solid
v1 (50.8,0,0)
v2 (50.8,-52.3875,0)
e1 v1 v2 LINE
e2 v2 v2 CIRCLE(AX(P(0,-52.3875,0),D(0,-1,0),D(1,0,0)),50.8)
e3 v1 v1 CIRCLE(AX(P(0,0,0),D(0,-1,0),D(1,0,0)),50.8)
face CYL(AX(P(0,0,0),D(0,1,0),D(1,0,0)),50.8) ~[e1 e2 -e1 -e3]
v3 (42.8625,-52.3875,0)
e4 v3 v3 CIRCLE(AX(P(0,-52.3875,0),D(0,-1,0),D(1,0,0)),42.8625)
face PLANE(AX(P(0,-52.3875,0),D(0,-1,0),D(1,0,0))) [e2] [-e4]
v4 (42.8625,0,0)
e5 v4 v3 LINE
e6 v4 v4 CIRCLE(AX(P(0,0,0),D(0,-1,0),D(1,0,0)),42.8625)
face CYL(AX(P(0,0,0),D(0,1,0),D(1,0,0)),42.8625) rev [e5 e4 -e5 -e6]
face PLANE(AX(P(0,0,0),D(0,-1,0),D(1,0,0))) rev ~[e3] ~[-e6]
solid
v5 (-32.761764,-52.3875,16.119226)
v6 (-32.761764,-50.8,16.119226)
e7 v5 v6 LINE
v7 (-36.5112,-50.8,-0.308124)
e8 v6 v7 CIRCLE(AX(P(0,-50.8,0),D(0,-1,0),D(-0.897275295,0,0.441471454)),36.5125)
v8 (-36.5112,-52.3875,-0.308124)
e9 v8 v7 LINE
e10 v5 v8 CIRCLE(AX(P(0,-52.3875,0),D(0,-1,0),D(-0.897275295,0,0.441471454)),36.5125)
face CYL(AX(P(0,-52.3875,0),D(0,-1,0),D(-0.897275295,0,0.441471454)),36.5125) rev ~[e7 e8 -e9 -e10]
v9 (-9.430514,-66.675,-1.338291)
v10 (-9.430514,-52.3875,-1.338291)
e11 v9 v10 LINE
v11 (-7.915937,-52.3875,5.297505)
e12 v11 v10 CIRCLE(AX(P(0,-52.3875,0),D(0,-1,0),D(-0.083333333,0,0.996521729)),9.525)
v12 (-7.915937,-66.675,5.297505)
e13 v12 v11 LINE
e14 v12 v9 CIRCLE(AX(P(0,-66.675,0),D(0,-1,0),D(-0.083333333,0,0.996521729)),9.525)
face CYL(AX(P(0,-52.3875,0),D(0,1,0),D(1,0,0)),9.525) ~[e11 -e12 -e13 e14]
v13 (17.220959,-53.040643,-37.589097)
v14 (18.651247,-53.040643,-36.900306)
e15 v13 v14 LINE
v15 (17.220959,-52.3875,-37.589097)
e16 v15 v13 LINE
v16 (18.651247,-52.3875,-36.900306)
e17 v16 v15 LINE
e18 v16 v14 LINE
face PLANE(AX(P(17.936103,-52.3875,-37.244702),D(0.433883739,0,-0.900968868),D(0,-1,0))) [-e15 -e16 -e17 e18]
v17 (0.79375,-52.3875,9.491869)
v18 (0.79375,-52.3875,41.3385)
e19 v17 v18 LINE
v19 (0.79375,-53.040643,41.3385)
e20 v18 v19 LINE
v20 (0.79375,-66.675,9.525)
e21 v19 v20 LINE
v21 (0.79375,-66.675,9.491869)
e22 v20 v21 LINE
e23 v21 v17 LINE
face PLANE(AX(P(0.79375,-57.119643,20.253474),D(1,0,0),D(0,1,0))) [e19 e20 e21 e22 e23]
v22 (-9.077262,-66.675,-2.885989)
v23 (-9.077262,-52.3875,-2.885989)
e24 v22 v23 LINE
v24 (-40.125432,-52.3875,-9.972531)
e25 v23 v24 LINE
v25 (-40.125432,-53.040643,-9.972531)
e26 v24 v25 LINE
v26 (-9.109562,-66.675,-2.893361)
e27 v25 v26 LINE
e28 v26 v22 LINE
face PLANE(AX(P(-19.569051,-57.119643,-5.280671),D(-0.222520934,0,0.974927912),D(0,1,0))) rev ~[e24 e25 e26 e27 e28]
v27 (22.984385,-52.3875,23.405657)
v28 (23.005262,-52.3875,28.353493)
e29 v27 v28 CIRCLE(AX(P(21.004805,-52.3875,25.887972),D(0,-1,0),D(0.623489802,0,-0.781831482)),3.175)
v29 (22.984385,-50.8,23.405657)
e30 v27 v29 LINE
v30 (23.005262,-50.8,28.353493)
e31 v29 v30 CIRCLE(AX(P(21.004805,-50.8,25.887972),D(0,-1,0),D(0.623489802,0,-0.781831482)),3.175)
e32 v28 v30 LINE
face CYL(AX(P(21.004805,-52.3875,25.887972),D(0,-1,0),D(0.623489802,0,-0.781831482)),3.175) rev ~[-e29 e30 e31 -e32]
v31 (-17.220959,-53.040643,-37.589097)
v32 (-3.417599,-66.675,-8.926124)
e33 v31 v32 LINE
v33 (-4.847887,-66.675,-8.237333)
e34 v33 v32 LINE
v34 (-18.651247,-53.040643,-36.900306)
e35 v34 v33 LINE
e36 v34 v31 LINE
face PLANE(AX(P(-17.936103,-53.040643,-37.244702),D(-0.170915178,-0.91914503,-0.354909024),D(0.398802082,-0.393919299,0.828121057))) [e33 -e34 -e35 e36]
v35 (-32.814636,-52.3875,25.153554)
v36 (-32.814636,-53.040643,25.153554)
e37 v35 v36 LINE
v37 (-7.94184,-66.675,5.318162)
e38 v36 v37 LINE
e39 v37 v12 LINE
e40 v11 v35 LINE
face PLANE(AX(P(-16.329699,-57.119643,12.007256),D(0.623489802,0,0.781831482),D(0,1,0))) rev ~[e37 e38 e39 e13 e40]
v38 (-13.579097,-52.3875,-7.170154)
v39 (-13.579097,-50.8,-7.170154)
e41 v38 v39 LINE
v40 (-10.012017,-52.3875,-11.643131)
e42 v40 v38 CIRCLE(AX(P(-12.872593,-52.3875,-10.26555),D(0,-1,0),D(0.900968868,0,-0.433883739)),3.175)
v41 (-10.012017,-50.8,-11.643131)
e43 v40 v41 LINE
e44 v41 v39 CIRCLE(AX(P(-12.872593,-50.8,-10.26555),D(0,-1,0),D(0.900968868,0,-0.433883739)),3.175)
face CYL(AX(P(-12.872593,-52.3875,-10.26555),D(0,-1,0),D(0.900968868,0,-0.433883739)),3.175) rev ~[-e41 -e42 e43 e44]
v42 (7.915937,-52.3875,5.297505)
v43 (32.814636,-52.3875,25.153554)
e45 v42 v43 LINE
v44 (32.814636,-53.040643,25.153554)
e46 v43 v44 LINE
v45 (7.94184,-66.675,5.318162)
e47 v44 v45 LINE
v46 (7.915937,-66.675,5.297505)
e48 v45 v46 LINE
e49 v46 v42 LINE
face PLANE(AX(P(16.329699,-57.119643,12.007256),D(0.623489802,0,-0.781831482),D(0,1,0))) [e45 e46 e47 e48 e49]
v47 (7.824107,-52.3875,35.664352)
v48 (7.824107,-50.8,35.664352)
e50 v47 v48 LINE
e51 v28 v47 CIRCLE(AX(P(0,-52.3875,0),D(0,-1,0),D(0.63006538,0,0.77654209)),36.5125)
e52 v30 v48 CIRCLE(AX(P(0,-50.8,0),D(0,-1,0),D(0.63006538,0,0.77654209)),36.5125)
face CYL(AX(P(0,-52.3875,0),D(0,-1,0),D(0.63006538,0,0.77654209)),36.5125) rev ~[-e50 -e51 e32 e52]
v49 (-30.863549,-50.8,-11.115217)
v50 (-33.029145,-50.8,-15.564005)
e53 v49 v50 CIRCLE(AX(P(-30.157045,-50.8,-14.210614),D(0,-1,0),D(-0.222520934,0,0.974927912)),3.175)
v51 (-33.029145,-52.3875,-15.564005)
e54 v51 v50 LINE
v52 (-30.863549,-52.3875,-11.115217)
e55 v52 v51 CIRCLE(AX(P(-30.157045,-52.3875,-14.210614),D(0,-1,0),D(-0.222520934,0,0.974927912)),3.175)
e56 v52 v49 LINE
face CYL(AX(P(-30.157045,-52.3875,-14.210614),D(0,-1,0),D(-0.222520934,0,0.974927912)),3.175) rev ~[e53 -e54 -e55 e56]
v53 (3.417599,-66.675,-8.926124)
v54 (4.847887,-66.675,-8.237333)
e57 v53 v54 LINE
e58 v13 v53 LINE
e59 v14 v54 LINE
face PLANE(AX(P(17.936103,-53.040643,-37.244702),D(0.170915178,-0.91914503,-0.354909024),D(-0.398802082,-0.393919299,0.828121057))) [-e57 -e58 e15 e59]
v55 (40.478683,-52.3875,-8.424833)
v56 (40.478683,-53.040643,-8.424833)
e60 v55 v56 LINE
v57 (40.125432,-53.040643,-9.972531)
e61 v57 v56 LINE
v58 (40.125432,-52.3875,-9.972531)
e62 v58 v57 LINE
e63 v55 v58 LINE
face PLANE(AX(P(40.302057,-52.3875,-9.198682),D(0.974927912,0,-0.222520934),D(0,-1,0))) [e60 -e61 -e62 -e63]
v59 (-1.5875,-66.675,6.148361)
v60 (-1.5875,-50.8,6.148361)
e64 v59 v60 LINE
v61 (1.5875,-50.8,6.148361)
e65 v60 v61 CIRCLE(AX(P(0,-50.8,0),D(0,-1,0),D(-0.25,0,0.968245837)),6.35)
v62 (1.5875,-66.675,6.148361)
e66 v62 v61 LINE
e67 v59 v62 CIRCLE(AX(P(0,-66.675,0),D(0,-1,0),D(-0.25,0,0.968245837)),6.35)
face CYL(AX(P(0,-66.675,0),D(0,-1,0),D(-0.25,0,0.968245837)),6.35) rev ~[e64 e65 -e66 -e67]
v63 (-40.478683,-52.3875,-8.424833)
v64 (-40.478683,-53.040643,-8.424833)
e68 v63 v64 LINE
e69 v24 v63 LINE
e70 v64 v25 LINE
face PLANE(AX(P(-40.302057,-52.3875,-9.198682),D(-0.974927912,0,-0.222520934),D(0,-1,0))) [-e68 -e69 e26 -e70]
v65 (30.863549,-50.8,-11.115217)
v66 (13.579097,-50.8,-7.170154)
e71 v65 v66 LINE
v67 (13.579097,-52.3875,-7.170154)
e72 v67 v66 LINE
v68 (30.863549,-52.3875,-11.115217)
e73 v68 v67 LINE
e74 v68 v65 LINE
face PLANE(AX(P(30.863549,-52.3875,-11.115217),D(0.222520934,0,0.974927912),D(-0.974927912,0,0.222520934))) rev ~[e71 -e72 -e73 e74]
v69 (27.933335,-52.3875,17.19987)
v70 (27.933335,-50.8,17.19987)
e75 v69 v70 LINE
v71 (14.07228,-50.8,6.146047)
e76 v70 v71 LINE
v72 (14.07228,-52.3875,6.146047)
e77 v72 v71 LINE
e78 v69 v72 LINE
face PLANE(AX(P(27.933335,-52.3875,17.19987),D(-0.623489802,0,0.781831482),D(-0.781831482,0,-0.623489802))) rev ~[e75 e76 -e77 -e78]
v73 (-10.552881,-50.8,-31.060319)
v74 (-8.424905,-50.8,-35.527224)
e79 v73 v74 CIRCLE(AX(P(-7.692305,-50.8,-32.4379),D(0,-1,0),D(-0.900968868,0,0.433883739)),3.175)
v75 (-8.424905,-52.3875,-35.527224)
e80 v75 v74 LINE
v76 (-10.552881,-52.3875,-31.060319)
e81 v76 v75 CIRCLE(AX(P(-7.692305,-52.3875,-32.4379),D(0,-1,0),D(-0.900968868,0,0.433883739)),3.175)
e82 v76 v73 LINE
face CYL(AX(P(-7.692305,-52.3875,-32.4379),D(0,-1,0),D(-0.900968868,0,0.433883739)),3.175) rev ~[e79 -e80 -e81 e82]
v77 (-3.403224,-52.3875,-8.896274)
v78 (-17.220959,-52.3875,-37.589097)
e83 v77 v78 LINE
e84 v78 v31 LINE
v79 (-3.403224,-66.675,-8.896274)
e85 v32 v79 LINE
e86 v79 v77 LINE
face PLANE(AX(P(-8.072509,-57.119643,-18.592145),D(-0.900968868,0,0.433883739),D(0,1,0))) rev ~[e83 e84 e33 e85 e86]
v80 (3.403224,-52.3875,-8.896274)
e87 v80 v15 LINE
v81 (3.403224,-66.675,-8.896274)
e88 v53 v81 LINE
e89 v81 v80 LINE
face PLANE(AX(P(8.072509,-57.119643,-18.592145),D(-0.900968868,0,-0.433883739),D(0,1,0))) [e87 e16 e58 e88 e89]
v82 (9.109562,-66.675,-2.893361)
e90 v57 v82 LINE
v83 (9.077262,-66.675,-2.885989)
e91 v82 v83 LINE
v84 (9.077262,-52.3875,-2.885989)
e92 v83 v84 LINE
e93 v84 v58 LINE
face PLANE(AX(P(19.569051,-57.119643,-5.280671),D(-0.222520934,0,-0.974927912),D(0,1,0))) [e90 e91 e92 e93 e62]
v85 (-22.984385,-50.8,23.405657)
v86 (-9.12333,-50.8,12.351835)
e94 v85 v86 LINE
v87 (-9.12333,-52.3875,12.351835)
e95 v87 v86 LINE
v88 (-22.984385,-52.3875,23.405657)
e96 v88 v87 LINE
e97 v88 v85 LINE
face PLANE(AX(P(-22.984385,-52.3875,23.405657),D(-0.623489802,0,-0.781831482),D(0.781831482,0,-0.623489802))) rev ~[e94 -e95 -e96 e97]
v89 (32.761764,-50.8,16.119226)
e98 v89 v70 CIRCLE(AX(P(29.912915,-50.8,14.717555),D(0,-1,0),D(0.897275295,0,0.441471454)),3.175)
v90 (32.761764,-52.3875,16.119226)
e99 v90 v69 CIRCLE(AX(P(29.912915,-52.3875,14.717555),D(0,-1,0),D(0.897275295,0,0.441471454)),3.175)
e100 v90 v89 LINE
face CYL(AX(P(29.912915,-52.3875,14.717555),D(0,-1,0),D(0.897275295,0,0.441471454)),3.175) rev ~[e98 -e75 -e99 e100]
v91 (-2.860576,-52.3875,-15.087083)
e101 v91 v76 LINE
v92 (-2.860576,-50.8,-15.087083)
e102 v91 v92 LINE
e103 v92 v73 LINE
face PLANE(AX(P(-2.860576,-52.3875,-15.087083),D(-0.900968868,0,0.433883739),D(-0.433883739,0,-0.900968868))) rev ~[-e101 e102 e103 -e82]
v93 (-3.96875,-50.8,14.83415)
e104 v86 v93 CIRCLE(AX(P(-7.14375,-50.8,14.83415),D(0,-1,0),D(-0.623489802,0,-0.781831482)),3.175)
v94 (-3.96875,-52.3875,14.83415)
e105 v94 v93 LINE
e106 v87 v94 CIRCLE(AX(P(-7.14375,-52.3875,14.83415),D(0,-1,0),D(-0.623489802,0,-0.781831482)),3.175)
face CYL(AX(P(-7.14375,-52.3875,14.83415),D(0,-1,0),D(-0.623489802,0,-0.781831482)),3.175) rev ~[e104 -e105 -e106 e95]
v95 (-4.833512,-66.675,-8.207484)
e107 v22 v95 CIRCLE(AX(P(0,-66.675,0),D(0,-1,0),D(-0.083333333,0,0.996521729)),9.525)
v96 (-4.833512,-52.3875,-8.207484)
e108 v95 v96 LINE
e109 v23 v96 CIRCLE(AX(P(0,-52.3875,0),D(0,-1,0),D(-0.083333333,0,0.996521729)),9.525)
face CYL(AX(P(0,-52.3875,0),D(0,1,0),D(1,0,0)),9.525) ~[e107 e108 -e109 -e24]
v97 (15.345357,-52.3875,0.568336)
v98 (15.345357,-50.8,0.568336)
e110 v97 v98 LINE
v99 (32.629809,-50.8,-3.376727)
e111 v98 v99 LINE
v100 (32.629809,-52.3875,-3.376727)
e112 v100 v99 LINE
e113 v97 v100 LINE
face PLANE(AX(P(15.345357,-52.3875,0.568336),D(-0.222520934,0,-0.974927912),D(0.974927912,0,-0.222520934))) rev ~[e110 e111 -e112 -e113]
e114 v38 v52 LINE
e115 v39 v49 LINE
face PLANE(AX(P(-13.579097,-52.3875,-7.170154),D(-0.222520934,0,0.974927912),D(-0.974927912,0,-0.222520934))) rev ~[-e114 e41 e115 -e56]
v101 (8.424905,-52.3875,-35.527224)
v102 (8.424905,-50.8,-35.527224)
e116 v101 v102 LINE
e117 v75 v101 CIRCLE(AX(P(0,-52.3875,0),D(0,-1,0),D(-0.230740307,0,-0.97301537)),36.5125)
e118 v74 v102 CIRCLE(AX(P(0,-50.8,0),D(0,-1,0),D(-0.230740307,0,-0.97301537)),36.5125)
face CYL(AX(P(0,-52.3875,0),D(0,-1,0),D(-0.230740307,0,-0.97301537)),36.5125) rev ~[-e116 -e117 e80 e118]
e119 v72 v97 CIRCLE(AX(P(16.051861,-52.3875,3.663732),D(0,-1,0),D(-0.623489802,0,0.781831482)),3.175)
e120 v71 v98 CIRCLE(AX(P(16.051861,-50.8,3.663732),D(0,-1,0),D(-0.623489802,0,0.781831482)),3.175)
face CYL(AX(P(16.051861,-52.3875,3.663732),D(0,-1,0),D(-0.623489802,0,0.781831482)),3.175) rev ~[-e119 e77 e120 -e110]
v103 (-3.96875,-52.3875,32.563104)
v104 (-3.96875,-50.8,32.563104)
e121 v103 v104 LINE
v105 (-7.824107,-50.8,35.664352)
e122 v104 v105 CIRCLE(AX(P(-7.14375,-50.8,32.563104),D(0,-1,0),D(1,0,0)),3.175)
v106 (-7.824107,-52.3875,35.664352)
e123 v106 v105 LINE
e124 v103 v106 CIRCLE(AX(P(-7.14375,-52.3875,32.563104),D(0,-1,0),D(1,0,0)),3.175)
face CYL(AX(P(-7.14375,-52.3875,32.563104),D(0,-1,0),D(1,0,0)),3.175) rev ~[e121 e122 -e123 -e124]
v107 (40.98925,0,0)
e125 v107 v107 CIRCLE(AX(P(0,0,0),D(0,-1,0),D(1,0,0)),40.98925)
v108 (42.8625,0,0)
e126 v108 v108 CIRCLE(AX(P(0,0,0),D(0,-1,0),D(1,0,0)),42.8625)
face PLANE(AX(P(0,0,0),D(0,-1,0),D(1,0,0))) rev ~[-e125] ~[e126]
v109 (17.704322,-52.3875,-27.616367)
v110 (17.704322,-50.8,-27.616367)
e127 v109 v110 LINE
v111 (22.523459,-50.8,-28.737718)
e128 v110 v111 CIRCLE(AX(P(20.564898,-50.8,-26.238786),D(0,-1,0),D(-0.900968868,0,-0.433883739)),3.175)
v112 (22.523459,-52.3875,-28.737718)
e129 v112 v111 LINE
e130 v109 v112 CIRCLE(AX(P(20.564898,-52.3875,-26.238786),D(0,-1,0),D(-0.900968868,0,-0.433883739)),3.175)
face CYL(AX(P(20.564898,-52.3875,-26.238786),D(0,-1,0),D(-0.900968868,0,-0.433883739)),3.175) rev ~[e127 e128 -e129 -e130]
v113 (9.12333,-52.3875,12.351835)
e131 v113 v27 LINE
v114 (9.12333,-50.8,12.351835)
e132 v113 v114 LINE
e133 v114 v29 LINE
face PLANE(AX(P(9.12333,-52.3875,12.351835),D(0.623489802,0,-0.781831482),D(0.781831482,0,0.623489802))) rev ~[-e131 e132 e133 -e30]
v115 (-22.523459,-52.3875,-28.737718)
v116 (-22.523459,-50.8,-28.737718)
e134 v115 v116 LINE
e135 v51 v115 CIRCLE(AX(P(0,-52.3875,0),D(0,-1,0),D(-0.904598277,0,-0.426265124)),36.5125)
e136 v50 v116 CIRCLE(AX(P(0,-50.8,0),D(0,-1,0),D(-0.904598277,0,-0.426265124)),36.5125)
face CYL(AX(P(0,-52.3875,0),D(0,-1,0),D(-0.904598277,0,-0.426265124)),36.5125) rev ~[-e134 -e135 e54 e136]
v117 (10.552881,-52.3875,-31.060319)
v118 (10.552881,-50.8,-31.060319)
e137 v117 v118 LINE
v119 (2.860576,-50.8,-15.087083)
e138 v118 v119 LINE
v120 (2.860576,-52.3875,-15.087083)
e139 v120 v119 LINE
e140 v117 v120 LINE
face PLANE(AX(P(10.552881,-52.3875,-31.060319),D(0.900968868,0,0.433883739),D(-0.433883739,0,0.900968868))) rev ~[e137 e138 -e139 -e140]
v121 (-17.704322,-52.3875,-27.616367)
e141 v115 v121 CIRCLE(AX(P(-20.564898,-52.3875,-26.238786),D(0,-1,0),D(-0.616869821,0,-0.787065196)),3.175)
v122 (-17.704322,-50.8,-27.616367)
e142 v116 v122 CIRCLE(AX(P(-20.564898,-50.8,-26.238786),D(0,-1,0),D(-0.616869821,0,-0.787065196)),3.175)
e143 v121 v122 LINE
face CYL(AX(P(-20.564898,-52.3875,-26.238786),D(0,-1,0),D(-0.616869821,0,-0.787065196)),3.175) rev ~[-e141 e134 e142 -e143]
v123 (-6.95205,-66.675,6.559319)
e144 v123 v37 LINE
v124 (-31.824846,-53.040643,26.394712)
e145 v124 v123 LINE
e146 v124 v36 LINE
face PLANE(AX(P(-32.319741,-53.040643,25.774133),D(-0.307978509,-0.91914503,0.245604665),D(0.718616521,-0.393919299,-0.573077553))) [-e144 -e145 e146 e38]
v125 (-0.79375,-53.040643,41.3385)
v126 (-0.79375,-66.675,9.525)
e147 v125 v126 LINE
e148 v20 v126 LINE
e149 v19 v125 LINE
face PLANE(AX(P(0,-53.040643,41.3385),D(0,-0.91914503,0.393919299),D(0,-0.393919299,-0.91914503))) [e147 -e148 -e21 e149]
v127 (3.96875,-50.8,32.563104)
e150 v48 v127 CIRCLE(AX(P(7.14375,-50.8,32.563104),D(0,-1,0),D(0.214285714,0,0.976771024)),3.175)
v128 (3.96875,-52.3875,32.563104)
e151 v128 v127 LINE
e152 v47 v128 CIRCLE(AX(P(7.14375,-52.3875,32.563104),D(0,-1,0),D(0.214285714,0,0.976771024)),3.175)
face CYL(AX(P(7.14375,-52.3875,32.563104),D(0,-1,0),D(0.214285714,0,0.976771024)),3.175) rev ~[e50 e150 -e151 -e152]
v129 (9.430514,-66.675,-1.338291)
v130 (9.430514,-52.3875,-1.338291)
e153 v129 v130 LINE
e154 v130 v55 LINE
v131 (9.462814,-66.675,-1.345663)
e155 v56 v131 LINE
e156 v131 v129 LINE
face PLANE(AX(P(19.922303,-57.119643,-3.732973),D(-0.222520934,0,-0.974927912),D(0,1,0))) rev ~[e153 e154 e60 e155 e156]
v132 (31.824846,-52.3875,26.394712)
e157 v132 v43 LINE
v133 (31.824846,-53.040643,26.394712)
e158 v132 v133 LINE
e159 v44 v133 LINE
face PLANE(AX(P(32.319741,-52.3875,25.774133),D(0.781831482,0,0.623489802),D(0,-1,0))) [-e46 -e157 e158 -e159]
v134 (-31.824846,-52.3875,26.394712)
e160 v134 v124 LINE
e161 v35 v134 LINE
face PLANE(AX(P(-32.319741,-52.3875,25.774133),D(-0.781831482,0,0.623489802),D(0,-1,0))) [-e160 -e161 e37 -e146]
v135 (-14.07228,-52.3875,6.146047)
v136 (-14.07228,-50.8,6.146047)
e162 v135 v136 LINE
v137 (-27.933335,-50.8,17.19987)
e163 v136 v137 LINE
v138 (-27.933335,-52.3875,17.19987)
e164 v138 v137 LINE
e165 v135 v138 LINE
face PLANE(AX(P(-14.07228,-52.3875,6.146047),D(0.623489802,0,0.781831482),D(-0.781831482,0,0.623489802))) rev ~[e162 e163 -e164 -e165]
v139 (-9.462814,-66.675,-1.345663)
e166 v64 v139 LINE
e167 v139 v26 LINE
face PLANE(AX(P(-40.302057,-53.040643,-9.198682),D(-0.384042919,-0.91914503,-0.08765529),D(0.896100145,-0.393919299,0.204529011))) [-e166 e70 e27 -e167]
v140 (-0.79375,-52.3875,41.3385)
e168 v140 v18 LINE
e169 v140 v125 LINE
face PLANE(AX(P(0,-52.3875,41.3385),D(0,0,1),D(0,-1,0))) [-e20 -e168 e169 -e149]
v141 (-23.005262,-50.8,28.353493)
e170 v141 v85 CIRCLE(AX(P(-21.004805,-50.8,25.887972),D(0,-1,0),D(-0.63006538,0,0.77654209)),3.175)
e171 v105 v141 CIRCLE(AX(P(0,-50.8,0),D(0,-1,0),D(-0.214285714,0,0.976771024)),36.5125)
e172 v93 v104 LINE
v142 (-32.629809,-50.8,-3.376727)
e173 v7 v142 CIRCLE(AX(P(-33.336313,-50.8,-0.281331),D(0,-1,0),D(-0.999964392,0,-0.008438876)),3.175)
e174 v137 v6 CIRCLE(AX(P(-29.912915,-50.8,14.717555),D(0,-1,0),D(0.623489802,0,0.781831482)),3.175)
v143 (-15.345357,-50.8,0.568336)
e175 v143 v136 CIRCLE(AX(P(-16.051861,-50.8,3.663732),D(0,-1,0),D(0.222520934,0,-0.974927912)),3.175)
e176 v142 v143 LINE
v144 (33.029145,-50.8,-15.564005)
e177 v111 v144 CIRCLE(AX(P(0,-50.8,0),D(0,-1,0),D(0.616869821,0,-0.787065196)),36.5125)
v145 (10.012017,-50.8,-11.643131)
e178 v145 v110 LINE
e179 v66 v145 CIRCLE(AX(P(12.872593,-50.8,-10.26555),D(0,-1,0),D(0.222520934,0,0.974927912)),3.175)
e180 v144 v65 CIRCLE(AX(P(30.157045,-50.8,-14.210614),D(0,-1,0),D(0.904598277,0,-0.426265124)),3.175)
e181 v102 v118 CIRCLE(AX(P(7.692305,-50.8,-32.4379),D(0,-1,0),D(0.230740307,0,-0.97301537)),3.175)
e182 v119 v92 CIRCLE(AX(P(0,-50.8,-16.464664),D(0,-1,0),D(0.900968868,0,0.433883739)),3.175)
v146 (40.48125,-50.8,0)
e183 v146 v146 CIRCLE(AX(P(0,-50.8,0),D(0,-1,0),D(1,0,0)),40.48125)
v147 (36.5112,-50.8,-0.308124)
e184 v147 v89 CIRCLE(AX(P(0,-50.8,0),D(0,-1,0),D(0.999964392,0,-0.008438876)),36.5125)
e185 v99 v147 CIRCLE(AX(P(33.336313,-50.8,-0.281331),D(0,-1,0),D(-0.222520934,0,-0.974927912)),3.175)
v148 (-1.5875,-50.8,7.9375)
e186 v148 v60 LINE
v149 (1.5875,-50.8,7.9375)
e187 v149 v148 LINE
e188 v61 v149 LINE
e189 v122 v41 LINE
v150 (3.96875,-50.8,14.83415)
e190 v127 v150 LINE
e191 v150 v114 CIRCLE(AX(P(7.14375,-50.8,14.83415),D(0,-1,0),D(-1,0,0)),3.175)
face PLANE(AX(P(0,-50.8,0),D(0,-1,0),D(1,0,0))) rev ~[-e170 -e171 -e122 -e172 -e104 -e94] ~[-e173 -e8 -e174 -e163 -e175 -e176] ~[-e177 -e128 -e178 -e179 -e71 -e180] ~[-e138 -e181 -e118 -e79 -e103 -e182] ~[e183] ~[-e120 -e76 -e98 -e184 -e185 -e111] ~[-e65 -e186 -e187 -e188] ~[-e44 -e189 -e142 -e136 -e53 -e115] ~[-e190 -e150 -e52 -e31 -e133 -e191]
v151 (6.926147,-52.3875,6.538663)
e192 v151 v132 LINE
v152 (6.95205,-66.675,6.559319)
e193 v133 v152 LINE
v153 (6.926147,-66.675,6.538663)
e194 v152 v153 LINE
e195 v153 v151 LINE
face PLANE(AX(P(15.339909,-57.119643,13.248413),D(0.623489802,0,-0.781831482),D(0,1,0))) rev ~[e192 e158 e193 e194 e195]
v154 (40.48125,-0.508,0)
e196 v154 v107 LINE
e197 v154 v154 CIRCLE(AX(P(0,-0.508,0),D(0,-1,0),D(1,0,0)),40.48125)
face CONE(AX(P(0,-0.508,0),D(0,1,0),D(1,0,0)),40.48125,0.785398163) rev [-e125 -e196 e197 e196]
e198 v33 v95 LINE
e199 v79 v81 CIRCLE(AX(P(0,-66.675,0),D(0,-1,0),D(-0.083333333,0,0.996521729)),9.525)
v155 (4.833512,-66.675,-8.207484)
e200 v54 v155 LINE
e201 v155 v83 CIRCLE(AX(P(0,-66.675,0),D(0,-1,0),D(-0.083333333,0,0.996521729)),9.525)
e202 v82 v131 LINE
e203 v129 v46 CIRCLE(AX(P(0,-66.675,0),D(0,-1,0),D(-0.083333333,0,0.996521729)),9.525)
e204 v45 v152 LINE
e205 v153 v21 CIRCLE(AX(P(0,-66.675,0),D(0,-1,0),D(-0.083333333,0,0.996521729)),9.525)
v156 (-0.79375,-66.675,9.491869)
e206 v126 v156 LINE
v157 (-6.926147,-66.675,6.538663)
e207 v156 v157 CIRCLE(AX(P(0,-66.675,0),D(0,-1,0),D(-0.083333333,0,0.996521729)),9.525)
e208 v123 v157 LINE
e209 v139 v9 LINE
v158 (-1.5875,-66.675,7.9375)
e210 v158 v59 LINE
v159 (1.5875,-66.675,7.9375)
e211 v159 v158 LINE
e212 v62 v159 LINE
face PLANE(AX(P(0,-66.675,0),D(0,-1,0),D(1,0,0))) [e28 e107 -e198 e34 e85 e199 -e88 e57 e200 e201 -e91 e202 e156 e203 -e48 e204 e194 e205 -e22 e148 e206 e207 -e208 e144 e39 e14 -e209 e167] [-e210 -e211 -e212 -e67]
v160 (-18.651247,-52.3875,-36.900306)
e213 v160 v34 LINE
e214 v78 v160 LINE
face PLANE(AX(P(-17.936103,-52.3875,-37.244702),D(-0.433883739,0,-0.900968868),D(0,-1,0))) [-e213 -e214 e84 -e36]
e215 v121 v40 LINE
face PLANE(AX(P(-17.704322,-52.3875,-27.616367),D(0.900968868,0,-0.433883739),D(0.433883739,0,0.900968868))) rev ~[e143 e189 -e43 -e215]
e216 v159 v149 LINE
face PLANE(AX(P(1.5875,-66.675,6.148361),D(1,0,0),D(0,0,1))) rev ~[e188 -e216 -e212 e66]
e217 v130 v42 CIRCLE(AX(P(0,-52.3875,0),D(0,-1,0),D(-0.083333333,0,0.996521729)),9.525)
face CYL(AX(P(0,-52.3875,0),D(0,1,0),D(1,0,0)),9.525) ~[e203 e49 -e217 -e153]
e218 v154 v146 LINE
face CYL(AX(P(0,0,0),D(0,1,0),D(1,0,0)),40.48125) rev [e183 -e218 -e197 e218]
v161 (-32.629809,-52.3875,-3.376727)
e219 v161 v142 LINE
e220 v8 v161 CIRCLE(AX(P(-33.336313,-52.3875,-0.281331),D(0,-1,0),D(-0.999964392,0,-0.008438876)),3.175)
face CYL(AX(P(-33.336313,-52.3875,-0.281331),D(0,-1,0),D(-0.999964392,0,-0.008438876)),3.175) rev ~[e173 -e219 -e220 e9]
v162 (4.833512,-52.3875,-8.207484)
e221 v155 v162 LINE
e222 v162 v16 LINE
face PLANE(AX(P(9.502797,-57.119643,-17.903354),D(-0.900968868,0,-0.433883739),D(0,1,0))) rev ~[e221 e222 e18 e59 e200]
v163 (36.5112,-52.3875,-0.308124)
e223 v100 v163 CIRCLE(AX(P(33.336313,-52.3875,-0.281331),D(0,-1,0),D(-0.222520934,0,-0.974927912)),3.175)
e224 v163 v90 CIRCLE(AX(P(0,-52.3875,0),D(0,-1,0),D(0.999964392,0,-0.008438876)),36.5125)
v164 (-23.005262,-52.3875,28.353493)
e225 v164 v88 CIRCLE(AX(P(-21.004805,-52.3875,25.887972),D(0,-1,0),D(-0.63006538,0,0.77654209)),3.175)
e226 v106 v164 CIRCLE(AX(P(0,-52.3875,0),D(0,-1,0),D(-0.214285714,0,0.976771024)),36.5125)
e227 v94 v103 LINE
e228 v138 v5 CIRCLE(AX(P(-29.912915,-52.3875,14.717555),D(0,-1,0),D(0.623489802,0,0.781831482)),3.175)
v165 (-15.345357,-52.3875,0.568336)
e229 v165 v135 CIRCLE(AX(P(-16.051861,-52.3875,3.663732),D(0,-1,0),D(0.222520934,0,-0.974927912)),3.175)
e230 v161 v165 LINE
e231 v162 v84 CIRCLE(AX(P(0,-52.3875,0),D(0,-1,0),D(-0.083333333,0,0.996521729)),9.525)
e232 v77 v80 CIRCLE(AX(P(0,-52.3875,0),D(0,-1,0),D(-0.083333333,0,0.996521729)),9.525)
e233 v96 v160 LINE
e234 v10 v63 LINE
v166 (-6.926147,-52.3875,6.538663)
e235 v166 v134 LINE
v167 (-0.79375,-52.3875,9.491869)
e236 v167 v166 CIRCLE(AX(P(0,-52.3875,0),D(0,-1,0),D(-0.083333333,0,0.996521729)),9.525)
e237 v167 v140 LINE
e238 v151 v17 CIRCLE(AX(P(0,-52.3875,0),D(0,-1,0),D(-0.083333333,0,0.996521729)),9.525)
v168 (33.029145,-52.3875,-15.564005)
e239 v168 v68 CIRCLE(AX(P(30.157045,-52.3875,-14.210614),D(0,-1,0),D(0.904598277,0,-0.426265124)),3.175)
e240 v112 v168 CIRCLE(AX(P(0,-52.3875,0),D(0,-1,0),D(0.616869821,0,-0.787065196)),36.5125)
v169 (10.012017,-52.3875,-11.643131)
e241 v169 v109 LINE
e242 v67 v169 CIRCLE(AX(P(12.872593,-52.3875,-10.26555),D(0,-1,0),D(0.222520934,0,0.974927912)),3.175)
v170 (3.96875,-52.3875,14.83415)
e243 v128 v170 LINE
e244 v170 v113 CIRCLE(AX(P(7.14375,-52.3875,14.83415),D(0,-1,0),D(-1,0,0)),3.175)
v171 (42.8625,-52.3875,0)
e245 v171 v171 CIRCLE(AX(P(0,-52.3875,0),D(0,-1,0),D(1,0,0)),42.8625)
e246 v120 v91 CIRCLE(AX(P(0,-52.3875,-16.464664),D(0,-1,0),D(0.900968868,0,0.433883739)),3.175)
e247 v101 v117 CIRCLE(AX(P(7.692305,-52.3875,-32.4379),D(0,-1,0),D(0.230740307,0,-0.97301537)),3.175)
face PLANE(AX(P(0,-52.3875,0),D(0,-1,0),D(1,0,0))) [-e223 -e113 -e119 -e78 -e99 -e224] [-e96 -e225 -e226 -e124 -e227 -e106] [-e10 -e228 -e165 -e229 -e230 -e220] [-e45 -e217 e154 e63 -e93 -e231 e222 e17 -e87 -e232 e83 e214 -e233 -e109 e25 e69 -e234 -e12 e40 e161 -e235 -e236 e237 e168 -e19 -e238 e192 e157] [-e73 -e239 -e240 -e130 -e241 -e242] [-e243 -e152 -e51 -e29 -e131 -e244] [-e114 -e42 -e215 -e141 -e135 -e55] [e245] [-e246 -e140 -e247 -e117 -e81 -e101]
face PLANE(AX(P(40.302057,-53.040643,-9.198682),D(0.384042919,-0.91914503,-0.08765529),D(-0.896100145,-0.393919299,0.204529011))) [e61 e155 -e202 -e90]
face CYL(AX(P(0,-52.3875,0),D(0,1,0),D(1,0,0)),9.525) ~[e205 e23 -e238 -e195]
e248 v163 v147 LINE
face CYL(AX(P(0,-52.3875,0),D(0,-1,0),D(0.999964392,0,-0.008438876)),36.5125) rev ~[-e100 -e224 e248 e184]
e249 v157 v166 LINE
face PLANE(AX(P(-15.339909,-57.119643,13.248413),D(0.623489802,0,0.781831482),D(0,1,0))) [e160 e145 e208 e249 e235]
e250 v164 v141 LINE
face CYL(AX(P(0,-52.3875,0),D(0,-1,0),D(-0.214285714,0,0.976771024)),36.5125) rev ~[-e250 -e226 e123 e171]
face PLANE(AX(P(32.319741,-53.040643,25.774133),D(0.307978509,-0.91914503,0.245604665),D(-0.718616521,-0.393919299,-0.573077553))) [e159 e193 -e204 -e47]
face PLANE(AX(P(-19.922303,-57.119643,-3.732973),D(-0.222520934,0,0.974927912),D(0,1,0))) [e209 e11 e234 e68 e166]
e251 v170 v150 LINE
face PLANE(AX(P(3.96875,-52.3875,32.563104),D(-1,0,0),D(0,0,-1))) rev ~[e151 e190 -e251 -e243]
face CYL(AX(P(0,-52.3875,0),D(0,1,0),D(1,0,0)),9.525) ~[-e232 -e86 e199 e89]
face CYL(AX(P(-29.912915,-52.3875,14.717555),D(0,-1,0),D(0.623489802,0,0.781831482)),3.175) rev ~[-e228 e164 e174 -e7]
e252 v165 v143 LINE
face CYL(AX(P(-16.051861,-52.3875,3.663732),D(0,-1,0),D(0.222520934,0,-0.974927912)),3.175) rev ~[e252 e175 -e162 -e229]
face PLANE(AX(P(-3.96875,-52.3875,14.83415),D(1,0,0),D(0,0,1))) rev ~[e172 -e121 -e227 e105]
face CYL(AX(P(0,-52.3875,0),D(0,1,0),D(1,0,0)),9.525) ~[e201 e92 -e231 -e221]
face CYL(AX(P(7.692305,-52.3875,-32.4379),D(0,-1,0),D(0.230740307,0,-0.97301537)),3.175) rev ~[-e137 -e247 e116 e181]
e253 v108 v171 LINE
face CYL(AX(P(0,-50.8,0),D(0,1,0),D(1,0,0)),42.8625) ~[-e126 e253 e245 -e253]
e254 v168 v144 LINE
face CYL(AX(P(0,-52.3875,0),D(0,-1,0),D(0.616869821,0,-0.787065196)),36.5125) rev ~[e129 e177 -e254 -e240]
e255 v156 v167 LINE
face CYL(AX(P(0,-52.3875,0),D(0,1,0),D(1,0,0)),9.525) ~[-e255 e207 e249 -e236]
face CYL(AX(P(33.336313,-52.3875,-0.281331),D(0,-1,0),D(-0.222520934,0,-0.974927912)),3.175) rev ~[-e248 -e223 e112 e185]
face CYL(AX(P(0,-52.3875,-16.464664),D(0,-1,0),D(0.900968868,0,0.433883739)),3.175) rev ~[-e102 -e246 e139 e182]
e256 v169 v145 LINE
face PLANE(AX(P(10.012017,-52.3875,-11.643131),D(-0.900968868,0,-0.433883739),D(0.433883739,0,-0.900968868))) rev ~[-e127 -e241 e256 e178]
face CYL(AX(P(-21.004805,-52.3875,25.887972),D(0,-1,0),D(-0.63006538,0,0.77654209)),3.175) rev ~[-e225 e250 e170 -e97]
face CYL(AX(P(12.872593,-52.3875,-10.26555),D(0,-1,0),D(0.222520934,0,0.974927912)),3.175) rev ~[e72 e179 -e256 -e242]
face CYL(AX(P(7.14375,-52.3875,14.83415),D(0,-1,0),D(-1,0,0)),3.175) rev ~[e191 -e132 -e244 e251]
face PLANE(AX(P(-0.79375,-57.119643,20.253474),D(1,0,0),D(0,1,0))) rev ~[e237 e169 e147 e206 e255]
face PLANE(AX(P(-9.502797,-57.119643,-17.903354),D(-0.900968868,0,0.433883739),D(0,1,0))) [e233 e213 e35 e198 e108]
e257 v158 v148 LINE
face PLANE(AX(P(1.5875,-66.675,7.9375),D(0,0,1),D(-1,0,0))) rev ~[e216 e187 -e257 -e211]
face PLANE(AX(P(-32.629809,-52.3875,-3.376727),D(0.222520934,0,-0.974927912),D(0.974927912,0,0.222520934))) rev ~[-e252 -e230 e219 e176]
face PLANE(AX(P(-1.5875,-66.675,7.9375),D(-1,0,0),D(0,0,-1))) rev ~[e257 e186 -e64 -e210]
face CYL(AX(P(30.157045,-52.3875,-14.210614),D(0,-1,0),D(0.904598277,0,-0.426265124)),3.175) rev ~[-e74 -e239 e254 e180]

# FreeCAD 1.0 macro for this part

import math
import FreeCAD as App
import Part
import Sketcher
from FreeCAD import Vector
Q = App.Units.Quantity


def edges_at(feature, points):
    """Names of the edges that pass closest to the given points."""
    edges = feature.Shape.Edges
    near = lambda p: min(range(len(edges)), key=lambda i: edges[i].distToShape(Part.Vertex(*p))[0])
    return sorted({f"Edge{near(p) + 1}" for p in points})

doc = App.newDocument("Part")
body = doc.addObject("PartDesign::Body", "Body")

sketch1 = body.newObject("Sketcher::SketchObject", "Sketch")
sketch1.AttachmentSupport = (doc.getObject("XZ_Plane"), [""])
sketch1.MapMode = "FlatFace"
sketch1.addGeometry([
    Part.Circle(Vector(0, 0, 0), Vector(0, 0, 1), 43),
    Part.Circle(Vector(0, 0, 0), Vector(0, 0, 1), 40),
], False)
sketch1.addConstraint([
    Sketcher.Constraint("Coincident", 0, 3, -1, 1),
    Sketcher.Constraint("Coincident", 1, 3, -1, 1),
    Sketcher.Constraint("Diameter", 0, Q("3.375 in")),
    Sketcher.Constraint("Diameter", 1, Q("3.1875 in")),
])
pad1 = body.newObject("PartDesign::Pad", "Pad")
pad1.Profile = sketch1
pad1.Length = Q("2 in")

sketch2 = body.newObject("Sketcher::SketchObject", "Sketch001")
sketch2.AttachmentSupport = (doc.getObject("XZ_Plane"), [""])
sketch2.MapMode = "FlatFace"
sketch2.AttachmentOffset = App.Placement(Vector(0, 0, 2 * 25.4), App.Rotation())
sketch2.addGeometry(Part.Circle(Vector(0, 0, 0), Vector(0, 0, 1), 43), False)
sketch2.addConstraint([
    Sketcher.Constraint("Coincident", 0, 3, -1, 1),
    Sketcher.Constraint("Diameter", 0, Q("3.375 in")),
])
pad2 = body.newObject("PartDesign::Pad", "Pad001")
pad2.Profile = sketch2
pad2.Length = Q("0.0625 in")

sketch3 = body.newObject("Sketcher::SketchObject", "Sketch002")
sketch3.AttachmentSupport = (doc.getObject("XZ_Plane"), [""])
sketch3.MapMode = "FlatFace"
sketch3.AttachmentOffset = App.Placement(Vector(0, 0, 2.0625 * 25.4), App.Rotation())
sketch3.addGeometry(Part.Circle(Vector(0, 0, 0), Vector(0, 0, 1), 10), False)
sketch3.addConstraint([
    Sketcher.Constraint("Coincident", 0, 3, -1, 1),
    Sketcher.Constraint("Diameter", 0, Q("0.75 in")),
])
pad3 = body.newObject("PartDesign::Pad", "Pad002")
pad3.Profile = sketch3
pad3.Length = Q("0.5625 in")
body2 = doc.addObject("PartDesign::Body", "Body001")

sketch4 = body2.newObject("Sketcher::SketchObject", "Sketch003")
sketch4.AttachmentSupport = (doc.getObject("YZ_Plane001"), [""])
sketch4.MapMode = "FlatFace"
sketch4.addGeometry([
    Part.LineSegment(Vector(-66.7, 4.5, 0), Vector(-52.4, 4.5, 0)),
    Part.LineSegment(Vector(-52.4, 4.5, 0), Vector(-52.4, 41.3, 0)),
    Part.LineSegment(Vector(-52.4, 41.3, 0), Vector(-53, 41.3, 0)),
    Part.LineSegment(Vector(-53, 41.3, 0), Vector(-66.7, 9.5, 0)),
    Part.LineSegment(Vector(-66.7, 9.5, 0), Vector(-66.7, 4.5, 0)),
], False)
sketch4.addConstraint([
    Sketcher.Constraint("Coincident", 0, 2, 1, 1),
    Sketcher.Constraint("Coincident", 1, 2, 2, 1),
    Sketcher.Constraint("Coincident", 2, 2, 3, 1),
    Sketcher.Constraint("Coincident", 3, 2, 4, 1),
    Sketcher.Constraint("Coincident", 4, 2, 0, 1),
    Sketcher.Constraint("Horizontal", 0),
    Sketcher.Constraint("Vertical", 1),
    Sketcher.Constraint("Horizontal", 2),
    Sketcher.Constraint("Vertical", 4),
    Sketcher.Constraint("DistanceX", 0, 1, 0, 2, Q("0.5625 in")),
    Sketcher.Constraint("DistanceX", 0, 2, -1, 1, Q("2.0625 in")),
    Sketcher.Constraint("DistanceY", -1, 1, 3, 2, Q("0.375 in")),
    Sketcher.Constraint("DistanceY", -1, 1, 1, 2, Q("1.6275 in")),
    Sketcher.Constraint("DistanceX", 2, 2, 2, 1, 0.653143),
    Sketcher.Constraint("DistanceY", 1, 1, 1, 2, 36.829585),
])
pad4 = body2.newObject("PartDesign::Pad", "Pad003")
pad4.Profile = sketch4
pad4.Length = Q("0.0625 in")
pad4.Midplane = True
doc.recompute()

body3 = doc.addObject("PartDesign::Body", "Body002")
body3.BaseFeature = body2
boolean = body.newObject("PartDesign::Boolean", "Boolean")
boolean.Type = "Fuse"
boolean.addObjects([body3])
doc.recompute()

body4 = doc.addObject("PartDesign::Body", "Body003")
body4.BaseFeature = body2
body4.Placement = App.Placement(Vector(0, 0, 0), App.Rotation(Vector(0, 1, 0), 51.428571))
boolean2 = body.newObject("PartDesign::Boolean", "Boolean001")
boolean2.Type = "Fuse"
boolean2.addObjects([body4])
doc.recompute()

body5 = doc.addObject("PartDesign::Body", "Body004")
body5.BaseFeature = body2
body5.Placement = App.Placement(Vector(0, 0, 0), App.Rotation(Vector(0, 1, 0), 102.857143))
boolean3 = body.newObject("PartDesign::Boolean", "Boolean002")
boolean3.Type = "Fuse"
boolean3.addObjects([body5])
doc.recompute()

body6 = doc.addObject("PartDesign::Body", "Body005")
body6.BaseFeature = body2
body6.Placement = App.Placement(Vector(0, 0, 0), App.Rotation(Vector(0, 1, 0), 154.285714))
boolean4 = body.newObject("PartDesign::Boolean", "Boolean003")
boolean4.Type = "Fuse"
boolean4.addObjects([body6])
doc.recompute()

body7 = doc.addObject("PartDesign::Body", "Body006")
body7.BaseFeature = body2
body7.Placement = App.Placement(Vector(0, 0, 0), App.Rotation(Vector(0, 1, 0), 205.714286))
boolean5 = body.newObject("PartDesign::Boolean", "Boolean004")
boolean5.Type = "Fuse"
boolean5.addObjects([body7])
doc.recompute()

body8 = doc.addObject("PartDesign::Body", "Body007")
body8.BaseFeature = body2
body8.Placement = App.Placement(Vector(0, 0, 0), App.Rotation(Vector(0, 1, 0), 257.142857))
boolean6 = body.newObject("PartDesign::Boolean", "Boolean005")
boolean6.Type = "Fuse"
boolean6.addObjects([body8])
doc.recompute()

body2.Placement = App.Placement(Vector(0, 0, 0), App.Rotation(Vector(0, 1, 0), 308.571429))
boolean7 = body.newObject("PartDesign::Boolean", "Boolean006")
boolean7.Type = "Fuse"
boolean7.addObjects([body2])

sketch5 = body.newObject("Sketcher::SketchObject", "Sketch004")
sketch5.AttachmentSupport = (doc.getObject("XZ_Plane"), [""])
sketch5.MapMode = "FlatFace"
sketch5.AttachmentOffset = App.Placement(Vector(0, 0, 2.625 * 25.4), App.Rotation())
sketch5.addGeometry([
    Part.LineSegment(Vector(-1.6, 7.9, 0), Vector(-1.6, 6.1, 0)),
    Part.ArcOfCircle(Part.Circle(Vector(0, 0, 0), Vector(0, 0, 1), 6.3), math.radians(104), math.radians(436)),
    Part.LineSegment(Vector(1.6, 6.1, 0), Vector(1.6, 7.9, 0)),
    Part.LineSegment(Vector(1.6, 7.9, 0), Vector(-1.6, 7.9, 0)),
], False)
sketch5.addConstraint([
    Sketcher.Constraint("Coincident", 0, 2, 1, 1),
    Sketcher.Constraint("Coincident", 1, 2, 2, 1),
    Sketcher.Constraint("Coincident", 2, 2, 3, 1),
    Sketcher.Constraint("Coincident", 3, 2, 0, 1),
    Sketcher.Constraint("Vertical", 0),
    Sketcher.Constraint("Vertical", 2),
    Sketcher.Constraint("Horizontal", 3),
    Sketcher.Constraint("Coincident", 1, 3, -1, 1),
    Sketcher.Constraint("Horizontal", 0, 2, 1, 2),
    Sketcher.Constraint("Radius", 1, Q("0.25 in")),
    Sketcher.Constraint("DistanceX", 3, 2, 3, 1, Q("0.125 in")),
    Sketcher.Constraint("DistanceY", -1, 1, 2, 2, Q("0.3125 in")),
])
pocket1 = body.newObject("PartDesign::Pocket", "Pocket")
pocket1.Profile = sketch5
pocket1.Type = "ThroughAll"

sketch6 = body.newObject("Sketcher::SketchObject", "Sketch005")
sketch6.AttachmentSupport = (doc.getObject("XZ_Plane"), [""])
sketch6.MapMode = "FlatFace"
sketch6.AttachmentOffset = App.Placement(Vector(0, 0, 2.0625 * 25.4), App.Rotation())
sketch6.addGeometry([
    Part.LineSegment(Vector(10.552881, -31.060319, 0), Vector(2.860576, -15.087083, 0)),
    Part.ArcOfCircle(Part.Circle(Vector(0, -16.464664, 0), Vector(0, 0, 1), 3.175), math.radians(25.714286), math.radians(154.285714)),
    Part.LineSegment(Vector(-2.860576, -15.087083, 0), Vector(-10.552881, -31.060319, 0)),
    Part.ArcOfCircle(Part.Circle(Vector(-7.692305, -32.4379, 0), Vector(0, 0, 1), 3.175), math.radians(154.285714), math.radians(256.659339)),
    Part.ArcOfCircle(Part.Circle(Vector(0, 0, 0), Vector(0, 0, 1), 36.5125), math.radians(-103.340661), math.radians(-76.659339)),
    Part.ArcOfCircle(Part.Circle(Vector(7.692305, -32.4379, 0), Vector(0, 0, 1), 3.175), math.radians(-76.659339), math.radians(25.714286)),
    Part.LineSegment(Vector(30.863549, -11.115217, 0), Vector(13.579097, -7.170154, 0)),
    Part.ArcOfCircle(Part.Circle(Vector(12.872593, -10.26555, 0), Vector(0, 0, 1), 3.175), math.radians(77.142857), math.radians(205.714286)),
    Part.LineSegment(Vector(10.012017, -11.643131, 0), Vector(17.704322, -27.616367, 0)),
    Part.ArcOfCircle(Part.Circle(Vector(20.564898, -26.238786, 0), Vector(0, 0, 1), 3.175), math.radians(-154.285714), math.radians(-51.912089)),
    Part.ArcOfCircle(Part.Circle(Vector(0, 0, 0), Vector(0, 0, 1), 36.5125), math.radians(-51.912089), math.radians(-25.230768)),
    Part.ArcOfCircle(Part.Circle(Vector(30.157045, -14.210614, 0), Vector(0, 0, 1), 3.175), math.radians(-25.230768), math.radians(77.142857)),
    Part.LineSegment(Vector(27.933335, 17.19987, 0), Vector(14.07228, 6.146047, 0)),
    Part.ArcOfCircle(Part.Circle(Vector(16.051861, 3.663732, 0), Vector(0, 0, 1), 3.175), math.radians(128.571429), math.radians(257.142857)),
    Part.LineSegment(Vector(15.345357, 0.568336, 0), Vector(32.629809, -3.376727, 0)),
    Part.ArcOfCircle(Part.Circle(Vector(33.336313, -0.281331, 0), Vector(0, 0, 1), 3.175), math.radians(-102.857143), math.radians(-0.483518)),
    Part.ArcOfCircle(Part.Circle(Vector(0, 0, 0), Vector(0, 0, 1), 36.5125), math.radians(-0.483518), math.radians(26.197803)),
    Part.ArcOfCircle(Part.Circle(Vector(29.912915, 14.717555, 0), Vector(0, 0, 1), 3.175), math.radians(26.197803), math.radians(128.571429)),
    Part.LineSegment(Vector(3.96875, 32.563104, 0), Vector(3.96875, 14.83415, 0)),
    Part.ArcOfCircle(Part.Circle(Vector(7.14375, 14.83415, 0), Vector(0, 0, 1), 3.175), math.radians(180), math.radians(308.571429)),
    Part.LineSegment(Vector(9.12333, 12.351835, 0), Vector(22.984385, 23.405657, 0)),
    Part.ArcOfCircle(Part.Circle(Vector(21.004805, 25.887972, 0), Vector(0, 0, 1), 3.175), math.radians(-51.428571), math.radians(50.945054)),
    Part.ArcOfCircle(Part.Circle(Vector(0, 0, 0), Vector(0, 0, 1), 36.5125), math.radians(50.945054), math.radians(77.626375)),
    Part.ArcOfCircle(Part.Circle(Vector(7.14375, 32.563104, 0), Vector(0, 0, 1), 3.175), math.radians(77.626375), math.radians(180)),
    Part.LineSegment(Vector(-22.984385, 23.405657, 0), Vector(-9.12333, 12.351835, 0)),
    Part.ArcOfCircle(Part.Circle(Vector(-7.14375, 14.83415, 0), Vector(0, 0, 1), 3.175), math.radians(-128.571429), math.radians(0)),
    Part.LineSegment(Vector(-3.96875, 14.83415, 0), Vector(-3.96875, 32.563104, 0)),
    Part.ArcOfCircle(Part.Circle(Vector(-7.14375, 32.563104, 0), Vector(0, 0, 1), 3.175), math.radians(0), math.radians(102.373625)),
    Part.ArcOfCircle(Part.Circle(Vector(0, 0, 0), Vector(0, 0, 1), 36.5125), math.radians(102.373625), math.radians(129.054946)),
    Part.ArcOfCircle(Part.Circle(Vector(-21.004805, 25.887972, 0), Vector(0, 0, 1), 3.175), math.radians(129.054946), math.radians(231.428571)),
    Part.LineSegment(Vector(-32.629809, -3.376727, 0), Vector(-15.345357, 0.568336, 0)),
    Part.ArcOfCircle(Part.Circle(Vector(-16.051861, 3.663732, 0), Vector(0, 0, 1), 3.175), math.radians(-77.142857), math.radians(51.428571)),
    Part.LineSegment(Vector(-14.07228, 6.146047, 0), Vector(-27.933335, 17.19987, 0)),
    Part.ArcOfCircle(Part.Circle(Vector(-29.912915, 14.717555, 0), Vector(0, 0, 1), 3.175), math.radians(51.428571), math.radians(153.802197)),
    Part.ArcOfCircle(Part.Circle(Vector(0, 0, 0), Vector(0, 0, 1), 36.5125), math.radians(153.802197), math.radians(180.483518)),
    Part.ArcOfCircle(Part.Circle(Vector(-33.336313, -0.281331, 0), Vector(0, 0, 1), 3.175), math.radians(-179.516482), math.radians(-77.142857)),
    Part.LineSegment(Vector(-17.704322, -27.616367, 0), Vector(-10.012017, -11.643131, 0)),
    Part.ArcOfCircle(Part.Circle(Vector(-12.872593, -10.26555, 0), Vector(0, 0, 1), 3.175), math.radians(-25.714286), math.radians(102.857143)),
    Part.LineSegment(Vector(-13.579097, -7.170154, 0), Vector(-30.863549, -11.115217, 0)),
    Part.ArcOfCircle(Part.Circle(Vector(-30.157045, -14.210614, 0), Vector(0, 0, 1), 3.175), math.radians(102.857143), math.radians(205.230768)),
    Part.ArcOfCircle(Part.Circle(Vector(0, 0, 0), Vector(0, 0, 1), 36.5125), math.radians(-154.769232), math.radians(-128.087911)),
    Part.ArcOfCircle(Part.Circle(Vector(-20.564898, -26.238786, 0), Vector(0, 0, 1), 3.175), math.radians(-128.087911), math.radians(-25.714286)),
], False)
sketch6.addConstraint([
    Sketcher.Constraint("Coincident", 0, 2, 1, 1),
    Sketcher.Constraint("Coincident", 1, 2, 2, 1),
    Sketcher.Constraint("Coincident", 2, 2, 3, 1),
    Sketcher.Constraint("Coincident", 3, 2, 4, 1),
    Sketcher.Constraint("Coincident", 4, 2, 5, 1),
    Sketcher.Constraint("Coincident", 5, 2, 0, 1),
    Sketcher.Constraint("Coincident", 6, 2, 7, 1),
    Sketcher.Constraint("Coincident", 7, 2, 8, 1),
    Sketcher.Constraint("Coincident", 8, 2, 9, 1),
    Sketcher.Constraint("Coincident", 9, 2, 10, 1),
    Sketcher.Constraint("Coincident", 10, 2, 11, 1),
    Sketcher.Constraint("Coincident", 11, 2, 6, 1),
    Sketcher.Constraint("Coincident", 12, 2, 13, 1),
    Sketcher.Constraint("Coincident", 13, 2, 14, 1),
    Sketcher.Constraint("Coincident", 14, 2, 15, 1),
    Sketcher.Constraint("Coincident", 15, 2, 16, 1),
    Sketcher.Constraint("Coincident", 16, 2, 17, 1),
    Sketcher.Constraint("Coincident", 17, 2, 12, 1),
    Sketcher.Constraint("Coincident", 18, 2, 19, 1),
    Sketcher.Constraint("Coincident", 19, 2, 20, 1),
    Sketcher.Constraint("Coincident", 20, 2, 21, 1),
    Sketcher.Constraint("Coincident", 21, 2, 22, 1),
    Sketcher.Constraint("Coincident", 22, 2, 23, 1),
    Sketcher.Constraint("Coincident", 23, 2, 18, 1),
    Sketcher.Constraint("Coincident", 24, 2, 25, 1),
    Sketcher.Constraint("Coincident", 25, 2, 26, 1),
    Sketcher.Constraint("Coincident", 26, 2, 27, 1),
    Sketcher.Constraint("Coincident", 27, 2, 28, 1),
    Sketcher.Constraint("Coincident", 28, 2, 29, 1),
    Sketcher.Constraint("Coincident", 29, 2, 24, 1),
    Sketcher.Constraint("Coincident", 30, 2, 31, 1),
    Sketcher.Constraint("Coincident", 31, 2, 32, 1),
    Sketcher.Constraint("Coincident", 32, 2, 33, 1),
    Sketcher.Constraint("Coincident", 33, 2, 34, 1),
    Sketcher.Constraint("Coincident", 34, 2, 35, 1),
    Sketcher.Constraint("Coincident", 35, 2, 30, 1),
    Sketcher.Constraint("Coincident", 36, 2, 37, 1),
    Sketcher.Constraint("Coincident", 37, 2, 38, 1),
    Sketcher.Constraint("Coincident", 38, 2, 39, 1),
    Sketcher.Constraint("Coincident", 39, 2, 40, 1),
    Sketcher.Constraint("Coincident", 40, 2, 41, 1),
    Sketcher.Constraint("Coincident", 41, 2, 36, 1),
    Sketcher.Constraint("Vertical", 18),
    Sketcher.Constraint("Vertical", 26),
    Sketcher.Constraint("Coincident", 4, 3, -1, 1),
    Sketcher.Constraint("Coincident", 10, 3, -1, 1),
    Sketcher.Constraint("Coincident", 16, 3, -1, 1),
    Sketcher.Constraint("Coincident", 22, 3, -1, 1),
    Sketcher.Constraint("Coincident", 28, 3, -1, 1),
    Sketcher.Constraint("Coincident", 34, 3, -1, 1),
    Sketcher.Constraint("Coincident", 40, 3, -1, 1),
    Sketcher.Constraint("PointOnObject", 1, 3, -2),
    Sketcher.Constraint("Radius", 1, Q("0.125 in")),
    Sketcher.Constraint("Radius", 3, Q("0.125 in")),
    Sketcher.Constraint("Radius", 4, Q("1.4375 in")),
    Sketcher.Constraint("Radius", 5, Q("0.125 in")),
    Sketcher.Constraint("Radius", 7, Q("0.125 in")),
    Sketcher.Constraint("Radius", 9, Q("0.125 in")),
    Sketcher.Constraint("Radius", 10, Q("1.4375 in")),
    Sketcher.Constraint("Radius", 11, Q("0.125 in")),
    Sketcher.Constraint("Radius", 13, Q("0.125 in")),
    Sketcher.Constraint("Radius", 15, Q("0.125 in")),
    Sketcher.Constraint("Radius", 16, Q("1.4375 in")),
    Sketcher.Constraint("Radius", 17, Q("0.125 in")),
    Sketcher.Constraint("Radius", 19, Q("0.125 in")),
    Sketcher.Constraint("Radius", 21, Q("0.125 in")),
    Sketcher.Constraint("Radius", 22, Q("1.4375 in")),
    Sketcher.Constraint("Radius", 23, Q("0.125 in")),
    Sketcher.Constraint("Radius", 25, Q("0.125 in")),
    Sketcher.Constraint("Radius", 27, Q("0.125 in")),
    Sketcher.Constraint("Radius", 28, Q("1.4375 in")),
    Sketcher.Constraint("Radius", 29, Q("0.125 in")),
    Sketcher.Constraint("Radius", 31, Q("0.125 in")),
    Sketcher.Constraint("Radius", 33, Q("0.125 in")),
    Sketcher.Constraint("Radius", 34, Q("1.4375 in")),
    Sketcher.Constraint("Radius", 35, Q("0.125 in")),
    Sketcher.Constraint("Radius", 37, Q("0.125 in")),
    Sketcher.Constraint("Radius", 39, Q("0.125 in")),
    Sketcher.Constraint("Radius", 40, Q("1.4375 in")),
    Sketcher.Constraint("Radius", 41, Q("0.125 in")),
    Sketcher.Constraint("DistanceX", -1, 1, 19, 3, Q("0.28125 in")),
    Sketcher.Constraint("DistanceX", 25, 3, -1, 1, Q("0.28125 in")),
    Sketcher.Constraint("DistanceY", 3, 3, -1, 1, 32.4379),
    Sketcher.Constraint("DistanceY", 5, 3, -1, 1, 32.4379),
    Sketcher.Constraint("DistanceX", -1, 1, 15, 2, 36.5112),
    Sketcher.Constraint("DistanceX", 34, 2, -1, 1, 36.5112),
    Sketcher.Constraint("DistanceY", 18, 2, 18, 1, 17.728954),
    Sketcher.Constraint("DistanceY", 26, 1, 26, 2, 17.728954),
    Sketcher.Constraint("DistanceY", 7, 3, -1, 1, 10.26555),
    Sketcher.Constraint("DistanceX", -1, 1, 13, 3, 16.051861),
    Sketcher.Constraint("DistanceY", 15, 3, -1, 1, 0.281331),
    Sketcher.Constraint("DistanceY", -1, 1, 19, 3, 14.83415),
    Sketcher.Constraint("DistanceY", -1, 1, 21, 3, 25.887972),
    Sketcher.Constraint("DistanceY", -1, 1, 25, 3, 14.83415),
    Sketcher.Constraint("DistanceY", -1, 1, 29, 3, 25.887972),
    Sketcher.Constraint("DistanceX", 31, 3, -1, 1, 16.051861),
    Sketcher.Constraint("DistanceY", 35, 3, -1, 1, 0.281331),
    Sketcher.Constraint("DistanceY", 37, 3, -1, 1, 10.26555),
    Sketcher.Constraint("DistanceX", 2, 2, -1, 1, 10.552881),
    Sketcher.Constraint("DistanceX", -1, 1, 5, 2, 10.552881),
    Sketcher.Constraint("DistanceY", 7, 2, -1, 1, 11.643131),
    Sketcher.Constraint("DistanceX", -1, 1, 8, 2, 17.704322),
    Sketcher.Constraint("DistanceX", -1, 1, 9, 2, 22.523459),
    Sketcher.Constraint("DistanceX", -1, 1, 11, 2, 30.863549),
    Sketcher.Constraint("DistanceX", -1, 1, 12, 2, 14.07228),
    Sketcher.Constraint("DistanceX", -1, 1, 14, 2, 32.629809),
    Sketcher.Constraint("DistanceY", -1, 1, 17, 2, 17.19987),
    Sketcher.Constraint("DistanceY", -1, 1, 18, 2, 14.83415),
    Sketcher.Constraint("DistanceX", -1, 1, 19, 2, 9.12333),
    Sketcher.Constraint("DistanceX", 24, 2, -1, 1, 9.12333),
    Sketcher.Constraint("DistanceY", -1, 1, 25, 2, 14.83415),
    Sketcher.Constraint("DistanceX", 31, 2, -1, 1, 14.07228),
    Sketcher.Constraint("DistanceY", -1, 1, 32, 2, 17.19987),
    Sketcher.Constraint("DistanceX", 35, 2, -1, 1, 32.629809),
    Sketcher.Constraint("DistanceY", 36, 2, -1, 1, 11.643131),
    Sketcher.Constraint("DistanceX", 38, 2, -1, 1, 30.863549),
    Sketcher.Constraint("DistanceX", 40, 2, -1, 1, 22.523459),
    Sketcher.Constraint("DistanceX", 41, 2, -1, 1, 17.704322),
    Sketcher.Constraint("Distance", 0, 17.728954),
    Sketcher.Constraint("Distance", 2, 17.728954),
    Sketcher.Constraint("Distance", 6, 17.728954),
    Sketcher.Constraint("Distance", 8, 17.728954),
    Sketcher.Constraint("Distance", 12, 17.728954),
    Sketcher.Constraint("Distance", 14, 17.728954),
    Sketcher.Constraint("Distance", 20, 17.728954),
    Sketcher.Constraint("Distance", 24, 17.728954),
    Sketcher.Constraint("Distance", 30, 17.728954),
    Sketcher.Constraint("Distance", 32, 17.728954),
    Sketcher.Constraint("Distance", 36, 17.728954),
    Sketcher.Constraint("Distance", 38, 17.728954),
    Sketcher.Constraint("DistanceY", 1, 3, -1, 1, 16.464664),
    Sketcher.Constraint("DistanceX", -1, 1, 7, 3, 12.872593),
    Sketcher.Constraint("DistanceX", -1, 1, 11, 3, 30.157045),
    Sketcher.Constraint("DistanceY", -1, 1, 13, 3, 3.663732),
    Sketcher.Constraint("DistanceY", -1, 1, 31, 3, 3.663732),
    Sketcher.Constraint("DistanceX", 37, 3, -1, 1, 12.872593),
    Sketcher.Constraint("DistanceX", 39, 3, -1, 1, 30.157045),
    Sketcher.Constraint("DistanceX", 3, 2, -1, 1, 8.424905),
    Sketcher.Constraint("DistanceX", -1, 1, 4, 2, 8.424905),
    Sketcher.Constraint("DistanceX", -1, 1, 10, 2, 33.029145),
    Sketcher.Constraint("DistanceX", -1, 1, 16, 2, 32.761764),
    Sketcher.Constraint("DistanceX", -1, 1, 21, 2, 23.005262),
    Sketcher.Constraint("DistanceX", -1, 1, 22, 2, 7.824107),
    Sketcher.Constraint("DistanceX", 27, 2, -1, 1, 7.824107),
    Sketcher.Constraint("DistanceX", 28, 2, -1, 1, 23.005262),
    Sketcher.Constraint("DistanceX", 33, 2, -1, 1, 32.761764),
    Sketcher.Constraint("DistanceX", 39, 2, -1, 1, 33.029145),
])
pocket2 = body.newObject("PartDesign::Pocket", "Pocket001")
pocket2.Profile = sketch6
pocket2.Type = "ThroughAll"
doc.recompute()

chamfer = body.newObject("PartDesign::Chamfer", "Chamfer")
chamfer.Base = (pocket2, edges_at(pocket2, [(-40.481, 0, 0)]))
chamfer.Size = Q("0.02 in")
body9 = doc.addObject("PartDesign::Body", "Body008")

sketch7 = body9.newObject("Sketcher::SketchObject", "Sketch006")
sketch7.AttachmentSupport = (doc.getObject("XZ_Plane008"), [""])
sketch7.MapMode = "FlatFace"
sketch7.addGeometry([
    Part.Circle(Vector(0, 0, 0), Vector(0, 0, 1), 51),
    Part.Circle(Vector(0, 0, 0), Vector(0, 0, 1), 43),
], False)
sketch7.addConstraint([
    Sketcher.Constraint("Coincident", 0, 3, -1, 1),
    Sketcher.Constraint("Coincident", 1, 3, -1, 1),
    Sketcher.Constraint("Diameter", 0, Q("4 in")),
    Sketcher.Constraint("Diameter", 1, Q("3.375 in")),
])
pad5 = body9.newObject("PartDesign::Pad", "Pad004")
pad5.Profile = sketch7
pad5.Length = Q("2.0625 in")

doc.recompute()
